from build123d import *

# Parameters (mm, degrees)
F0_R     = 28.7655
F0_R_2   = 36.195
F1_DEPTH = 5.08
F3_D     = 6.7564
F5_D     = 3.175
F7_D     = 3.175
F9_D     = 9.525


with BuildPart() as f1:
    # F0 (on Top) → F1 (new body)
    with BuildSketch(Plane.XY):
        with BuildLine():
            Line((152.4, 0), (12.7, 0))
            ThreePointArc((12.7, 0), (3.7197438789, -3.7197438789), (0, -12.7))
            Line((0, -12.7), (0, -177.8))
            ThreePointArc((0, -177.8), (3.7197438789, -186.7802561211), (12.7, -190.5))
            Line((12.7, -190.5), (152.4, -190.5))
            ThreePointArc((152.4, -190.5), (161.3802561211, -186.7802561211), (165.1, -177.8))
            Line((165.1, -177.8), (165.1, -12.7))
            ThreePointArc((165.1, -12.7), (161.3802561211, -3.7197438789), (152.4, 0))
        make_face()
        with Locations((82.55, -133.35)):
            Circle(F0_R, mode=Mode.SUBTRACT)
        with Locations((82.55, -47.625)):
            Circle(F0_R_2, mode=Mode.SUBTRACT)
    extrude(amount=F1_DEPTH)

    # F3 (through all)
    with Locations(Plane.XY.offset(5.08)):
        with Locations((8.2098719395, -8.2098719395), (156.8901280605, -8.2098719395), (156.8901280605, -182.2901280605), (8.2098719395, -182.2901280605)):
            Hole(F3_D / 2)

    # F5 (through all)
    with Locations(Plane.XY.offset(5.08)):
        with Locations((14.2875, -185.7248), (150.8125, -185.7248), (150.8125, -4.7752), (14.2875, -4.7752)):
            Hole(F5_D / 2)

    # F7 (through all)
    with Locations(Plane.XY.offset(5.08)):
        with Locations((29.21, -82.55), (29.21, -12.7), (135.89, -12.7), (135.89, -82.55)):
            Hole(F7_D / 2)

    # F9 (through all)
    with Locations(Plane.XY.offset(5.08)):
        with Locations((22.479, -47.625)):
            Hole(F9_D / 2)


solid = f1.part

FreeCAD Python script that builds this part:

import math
import FreeCAD as App
import Part
import Sketcher
from FreeCAD import Vector
Q = App.Units.Quantity

doc = App.newDocument("Part")
body = doc.addObject("PartDesign::Body", "Body")

# Sketch on XY plane
sketch1 = body.newObject("Sketcher::SketchObject", "Sketch")
sketch1.AttachmentSupport = (doc.getObject("XY_Plane"), [""])
sketch1.MapMode = "FlatFace"
sketch1.addGeometry(Part.LineSegment(Vector(152, 0, 0), Vector(13, 0, 0)), False)
sketch1.addGeometry(Part.ArcOfCircle(Part.Circle(Vector(13, -13, 0), Vector(0, 0, 1), 13), math.radians(90), math.radians(180)), False)
sketch1.addGeometry(Part.LineSegment(Vector(0, -13, 0), Vector(0, -178, 0)), False)
sketch1.addGeometry(Part.ArcOfCircle(Part.Circle(Vector(13, -178, 0), Vector(0, 0, 1), 13), math.radians(180), math.radians(270)), False)
sketch1.addGeometry(Part.LineSegment(Vector(13, -190, 0), Vector(152, -190, 0)), False)
sketch1.addGeometry(Part.ArcOfCircle(Part.Circle(Vector(152, -178, 0), Vector(0, 0, 1), 13), math.radians(-90), math.radians(0)), False)
sketch1.addGeometry(Part.LineSegment(Vector(165, -178, 0), Vector(165, -13, 0)), False)
sketch1.addGeometry(Part.ArcOfCircle(Part.Circle(Vector(152, -13, 0), Vector(0, 0, 1), 13), math.radians(0), math.radians(90)), False)
sketch1.addGeometry(Part.Circle(Vector(83, -133, 0), Vector(0, 0, 1), 29), False)
sketch1.addGeometry(Part.Circle(Vector(83, -48, 0), Vector(0, 0, 1), 36), False)
sketch1.addConstraint(Sketcher.Constraint("Tangent", 0, 2, 1, 1))
sketch1.addConstraint(Sketcher.Constraint("Tangent", 1, 2, 2, 1))
sketch1.addConstraint(Sketcher.Constraint("Tangent", 2, 2, 3, 1))
sketch1.addConstraint(Sketcher.Constraint("Tangent", 3, 2, 4, 1))
sketch1.addConstraint(Sketcher.Constraint("Tangent", 4, 2, 5, 1))
sketch1.addConstraint(Sketcher.Constraint("Tangent", 5, 2, 6, 1))
sketch1.addConstraint(Sketcher.Constraint("Tangent", 6, 2, 7, 1))
sketch1.addConstraint(Sketcher.Constraint("Tangent", 7, 2, 0, 1))
sketch1.addConstraint(Sketcher.Constraint("Horizontal", 0))
sketch1.addConstraint(Sketcher.Constraint("Vertical", 2))
sketch1.addConstraint(Sketcher.Constraint("Horizontal", 4))
sketch1.addConstraint(Sketcher.Constraint("Vertical", 6))
sketch1.addConstraint(Sketcher.Constraint("Equal", 1, 3))
sketch1.addConstraint(Sketcher.Constraint("Equal", 3, 5))
sketch1.addConstraint(Sketcher.Constraint("Equal", 5, 7))
sketch1.addConstraint(Sketcher.Constraint("PointOnObject", 0, 2, -1))
sketch1.addConstraint(Sketcher.Constraint("PointOnObject", 1, 2, -2))
sketch1.addConstraint(Sketcher.Constraint("Vertical", 8, 3, 9, 3))
sketch1.addConstraint(Sketcher.Constraint("Radius", 1, Q("0.5 in")))
sketch1.addConstraint(Sketcher.Constraint("Diameter", 9, Q("2.85 in")))
sketch1.addConstraint(Sketcher.Constraint("Diameter", 8, Q("2.265 in")))
sketch1.addConstraint(Sketcher.Constraint("DistanceX", 0, 2, 0, 1, Q("5.5 in")))
sketch1.addConstraint(Sketcher.Constraint("DistanceY", 2, 2, 2, 1, Q("6.5 in")))
sketch1.addConstraint(Sketcher.Constraint("DistanceX", -1, 1, 8, 3, Q("3.25 in")))
sketch1.addConstraint(Sketcher.Constraint("DistanceY", 8, 3, -1, 1, Q("5.25 in")))
sketch1.addConstraint(Sketcher.Constraint("DistanceY", 9, 3, -1, 1, Q("1.875 in")))
pad1 = body.newObject("PartDesign::Pad", "Pad")
pad1.Profile = sketch1
pad1.Length = Q("0.2 in")

# Sketch on XY plane
sketch2 = body.newObject("Sketcher::SketchObject", "Sketch001")
sketch2.AttachmentSupport = (doc.getObject("XY_Plane"), [""])
sketch2.MapMode = "FlatFace"
sketch2.AttachmentOffset = App.Placement(Vector(0, 0, 0.2 * 25.4), App.Rotation())
sketch2.addGeometry(Part.Circle(Vector(8.2, -8.2, 0), Vector(0, 0, 1), 3.4), False)
sketch2.addGeometry(Part.Circle(Vector(156.9, -8.2, 0), Vector(0, 0, 1), 3.4), False)
sketch2.addGeometry(Part.Circle(Vector(156.9, -182.3, 0), Vector(0, 0, 1), 3.4), False)
sketch2.addGeometry(Part.Circle(Vector(8.2, -182.3, 0), Vector(0, 0, 1), 3.4), False)
sketch2.addConstraint(Sketcher.Constraint("Equal", 0, 1))
sketch2.addConstraint(Sketcher.Constraint("Equal", 1, 2))
sketch2.addConstraint(Sketcher.Constraint("Equal", 2, 3))
sketch2.addConstraint(Sketcher.Constraint("Horizontal", 0, 3, 1, 3))
sketch2.addConstraint(Sketcher.Constraint("Horizontal", 2, 3, 3, 3))
sketch2.addConstraint(Sketcher.Constraint("Vertical", 1, 3, 2, 3))
sketch2.addConstraint(Sketcher.Constraint("Vertical", 0, 3, 3, 3))
sketch2.addConstraint(Sketcher.Constraint("Diameter", 0, Q("0.266 in")))
sketch2.addConstraint(Sketcher.Constraint("DistanceX", -1, 1, 0, 3, Q("8.209872 mm")))
sketch2.addConstraint(Sketcher.Constraint("DistanceY", 0, 3, -1, 1, Q("8.209872 mm")))
sketch2.addConstraint(Sketcher.Constraint("DistanceX", -1, 1, 1, 3, Q("156.890128 mm")))
sketch2.addConstraint(Sketcher.Constraint("DistanceY", 2, 3, -1, 1, Q("182.290128 mm")))
doc.recompute()
hole = body.newObject("PartDesign::Hole", "Hole")
hole.Profile = sketch2
hole.ThreadType = "None"
hole.Diameter = Q("0.266 in")
hole.DepthType = "ThroughAll"

# Sketch on XY plane
sketch3 = body.newObject("Sketcher::SketchObject", "Sketch002")
sketch3.AttachmentSupport = (doc.getObject("XY_Plane"), [""])
sketch3.MapMode = "FlatFace"
sketch3.AttachmentOffset = App.Placement(Vector(0, 0, 0.2 * 25.4), App.Rotation())
sketch3.addGeometry(Part.Circle(Vector(14.3, -185.7, 0), Vector(0, 0, 1), 1.6), False)
sketch3.addGeometry(Part.Circle(Vector(150.8, -185.7, 0), Vector(0, 0, 1), 1.6), False)
sketch3.addGeometry(Part.Circle(Vector(150.8, -4.8, 0), Vector(0, 0, 1), 1.6), False)
sketch3.addGeometry(Part.Circle(Vector(14.3, -4.8, 0), Vector(0, 0, 1), 1.6), False)
sketch3.addConstraint(Sketcher.Constraint("Equal", 0, 1))
sketch3.addConstraint(Sketcher.Constraint("Equal", 1, 2))
sketch3.addConstraint(Sketcher.Constraint("Equal", 2, 3))
sketch3.addConstraint(Sketcher.Constraint("Horizontal", 0, 3, 1, 3))
sketch3.addConstraint(Sketcher.Constraint("Horizontal", 2, 3, 3, 3))
sketch3.addConstraint(Sketcher.Constraint("Vertical", 1, 3, 2, 3))
sketch3.addConstraint(Sketcher.Constraint("Vertical", 0, 3, 3, 3))
sketch3.addConstraint(Sketcher.Constraint("Diameter", 0, Q("0.125 in")))
sketch3.addConstraint(Sketcher.Constraint("DistanceX", -1, 1, 0, 3, Q("0.5625 in")))
sketch3.addConstraint(Sketcher.Constraint("DistanceY", 0, 3, -1, 1, Q("7.312 in")))
sketch3.addConstraint(Sketcher.Constraint("DistanceX", -1, 1, 1, 3, Q("5.9375 in")))
sketch3.addConstraint(Sketcher.Constraint("DistanceY", 2, 3, -1, 1, Q("0.188 in")))
doc.recompute()
hole2 = body.newObject("PartDesign::Hole", "Hole001")
hole2.Profile = sketch3
hole2.ThreadType = "None"
hole2.Diameter = Q("0.125 in")
hole2.DepthType = "ThroughAll"

# Sketch on XY plane
sketch4 = body.newObject("Sketcher::SketchObject", "Sketch003")
sketch4.AttachmentSupport = (doc.getObject("XY_Plane"), [""])
sketch4.MapMode = "FlatFace"
sketch4.AttachmentOffset = App.Placement(Vector(0, 0, 0.2 * 25.4), App.Rotation())
sketch4.addGeometry(Part.Circle(Vector(29.2, -82.5, 0), Vector(0, 0, 1), 1.6), False)
sketch4.addGeometry(Part.Circle(Vector(29.2, -12.7, 0), Vector(0, 0, 1), 1.6), False)
sketch4.addGeometry(Part.Circle(Vector(135.9, -12.7, 0), Vector(0, 0, 1), 1.6), False)
sketch4.addGeometry(Part.Circle(Vector(135.9, -82.5, 0), Vector(0, 0, 1), 1.6), False)
sketch4.addConstraint(Sketcher.Constraint("Equal", 0, 1))
sketch4.addConstraint(Sketcher.Constraint("Equal", 1, 2))
sketch4.addConstraint(Sketcher.Constraint("Equal", 2, 3))
sketch4.addConstraint(Sketcher.Constraint("Horizontal", 1, 3, 2, 3))
sketch4.addConstraint(Sketcher.Constraint("Horizontal", 0, 3, 3, 3))
sketch4.addConstraint(Sketcher.Constraint("Vertical", 0, 3, 1, 3))
sketch4.addConstraint(Sketcher.Constraint("Vertical", 2, 3, 3, 3))
sketch4.addConstraint(Sketcher.Constraint("Diameter", 0, Q("0.125 in")))
sketch4.addConstraint(Sketcher.Constraint("DistanceY", 1, 3, -1, 1, Q("0.5 in")))
sketch4.addConstraint(Sketcher.Constraint("DistanceX", 1, 3, 2, 3, Q("4.2 in")))
sketch4.addConstraint(Sketcher.Constraint("DistanceX", -1, 1, 0, 3, Q("1.15 in")))
sketch4.addConstraint(Sketcher.Constraint("DistanceY", 0, 3, -1, 1, Q("3.25 in")))
doc.recompute()
hole3 = body.newObject("PartDesign::Hole", "Hole002")
hole3.Profile = sketch4
hole3.ThreadType = "None"
hole3.Diameter = Q("0.125 in")
hole3.DepthType = "ThroughAll"

# Sketch on XY plane
sketch5 = body.newObject("Sketcher::SketchObject", "Sketch004")
sketch5.AttachmentSupport = (doc.getObject("XY_Plane"), [""])
sketch5.MapMode = "FlatFace"
sketch5.AttachmentOffset = App.Placement(Vector(0, 0, 0.2 * 25.4), App.Rotation())
sketch5.addGeometry(Part.Circle(Vector(22.5, -47.6, 0), Vector(0, 0, 1), 4.8), False)
sketch5.addConstraint(Sketcher.Constraint("Diameter", 0, Q("0.375 in")))
sketch5.addConstraint(Sketcher.Constraint("DistanceX", -1, 1, 0, 3, Q("0.885 in")))
sketch5.addConstraint(Sketcher.Constraint("DistanceY", 0, 3, -1, 1, Q("1.875 in")))
doc.recompute()
hole4 = body.newObject("PartDesign::Hole", "Hole003")
hole4.Profile = sketch5
hole4.ThreadType = "None"
hole4.Diameter = Q("0.375 in")
hole4.DepthType = "ThroughAll"

doc.recompute()
